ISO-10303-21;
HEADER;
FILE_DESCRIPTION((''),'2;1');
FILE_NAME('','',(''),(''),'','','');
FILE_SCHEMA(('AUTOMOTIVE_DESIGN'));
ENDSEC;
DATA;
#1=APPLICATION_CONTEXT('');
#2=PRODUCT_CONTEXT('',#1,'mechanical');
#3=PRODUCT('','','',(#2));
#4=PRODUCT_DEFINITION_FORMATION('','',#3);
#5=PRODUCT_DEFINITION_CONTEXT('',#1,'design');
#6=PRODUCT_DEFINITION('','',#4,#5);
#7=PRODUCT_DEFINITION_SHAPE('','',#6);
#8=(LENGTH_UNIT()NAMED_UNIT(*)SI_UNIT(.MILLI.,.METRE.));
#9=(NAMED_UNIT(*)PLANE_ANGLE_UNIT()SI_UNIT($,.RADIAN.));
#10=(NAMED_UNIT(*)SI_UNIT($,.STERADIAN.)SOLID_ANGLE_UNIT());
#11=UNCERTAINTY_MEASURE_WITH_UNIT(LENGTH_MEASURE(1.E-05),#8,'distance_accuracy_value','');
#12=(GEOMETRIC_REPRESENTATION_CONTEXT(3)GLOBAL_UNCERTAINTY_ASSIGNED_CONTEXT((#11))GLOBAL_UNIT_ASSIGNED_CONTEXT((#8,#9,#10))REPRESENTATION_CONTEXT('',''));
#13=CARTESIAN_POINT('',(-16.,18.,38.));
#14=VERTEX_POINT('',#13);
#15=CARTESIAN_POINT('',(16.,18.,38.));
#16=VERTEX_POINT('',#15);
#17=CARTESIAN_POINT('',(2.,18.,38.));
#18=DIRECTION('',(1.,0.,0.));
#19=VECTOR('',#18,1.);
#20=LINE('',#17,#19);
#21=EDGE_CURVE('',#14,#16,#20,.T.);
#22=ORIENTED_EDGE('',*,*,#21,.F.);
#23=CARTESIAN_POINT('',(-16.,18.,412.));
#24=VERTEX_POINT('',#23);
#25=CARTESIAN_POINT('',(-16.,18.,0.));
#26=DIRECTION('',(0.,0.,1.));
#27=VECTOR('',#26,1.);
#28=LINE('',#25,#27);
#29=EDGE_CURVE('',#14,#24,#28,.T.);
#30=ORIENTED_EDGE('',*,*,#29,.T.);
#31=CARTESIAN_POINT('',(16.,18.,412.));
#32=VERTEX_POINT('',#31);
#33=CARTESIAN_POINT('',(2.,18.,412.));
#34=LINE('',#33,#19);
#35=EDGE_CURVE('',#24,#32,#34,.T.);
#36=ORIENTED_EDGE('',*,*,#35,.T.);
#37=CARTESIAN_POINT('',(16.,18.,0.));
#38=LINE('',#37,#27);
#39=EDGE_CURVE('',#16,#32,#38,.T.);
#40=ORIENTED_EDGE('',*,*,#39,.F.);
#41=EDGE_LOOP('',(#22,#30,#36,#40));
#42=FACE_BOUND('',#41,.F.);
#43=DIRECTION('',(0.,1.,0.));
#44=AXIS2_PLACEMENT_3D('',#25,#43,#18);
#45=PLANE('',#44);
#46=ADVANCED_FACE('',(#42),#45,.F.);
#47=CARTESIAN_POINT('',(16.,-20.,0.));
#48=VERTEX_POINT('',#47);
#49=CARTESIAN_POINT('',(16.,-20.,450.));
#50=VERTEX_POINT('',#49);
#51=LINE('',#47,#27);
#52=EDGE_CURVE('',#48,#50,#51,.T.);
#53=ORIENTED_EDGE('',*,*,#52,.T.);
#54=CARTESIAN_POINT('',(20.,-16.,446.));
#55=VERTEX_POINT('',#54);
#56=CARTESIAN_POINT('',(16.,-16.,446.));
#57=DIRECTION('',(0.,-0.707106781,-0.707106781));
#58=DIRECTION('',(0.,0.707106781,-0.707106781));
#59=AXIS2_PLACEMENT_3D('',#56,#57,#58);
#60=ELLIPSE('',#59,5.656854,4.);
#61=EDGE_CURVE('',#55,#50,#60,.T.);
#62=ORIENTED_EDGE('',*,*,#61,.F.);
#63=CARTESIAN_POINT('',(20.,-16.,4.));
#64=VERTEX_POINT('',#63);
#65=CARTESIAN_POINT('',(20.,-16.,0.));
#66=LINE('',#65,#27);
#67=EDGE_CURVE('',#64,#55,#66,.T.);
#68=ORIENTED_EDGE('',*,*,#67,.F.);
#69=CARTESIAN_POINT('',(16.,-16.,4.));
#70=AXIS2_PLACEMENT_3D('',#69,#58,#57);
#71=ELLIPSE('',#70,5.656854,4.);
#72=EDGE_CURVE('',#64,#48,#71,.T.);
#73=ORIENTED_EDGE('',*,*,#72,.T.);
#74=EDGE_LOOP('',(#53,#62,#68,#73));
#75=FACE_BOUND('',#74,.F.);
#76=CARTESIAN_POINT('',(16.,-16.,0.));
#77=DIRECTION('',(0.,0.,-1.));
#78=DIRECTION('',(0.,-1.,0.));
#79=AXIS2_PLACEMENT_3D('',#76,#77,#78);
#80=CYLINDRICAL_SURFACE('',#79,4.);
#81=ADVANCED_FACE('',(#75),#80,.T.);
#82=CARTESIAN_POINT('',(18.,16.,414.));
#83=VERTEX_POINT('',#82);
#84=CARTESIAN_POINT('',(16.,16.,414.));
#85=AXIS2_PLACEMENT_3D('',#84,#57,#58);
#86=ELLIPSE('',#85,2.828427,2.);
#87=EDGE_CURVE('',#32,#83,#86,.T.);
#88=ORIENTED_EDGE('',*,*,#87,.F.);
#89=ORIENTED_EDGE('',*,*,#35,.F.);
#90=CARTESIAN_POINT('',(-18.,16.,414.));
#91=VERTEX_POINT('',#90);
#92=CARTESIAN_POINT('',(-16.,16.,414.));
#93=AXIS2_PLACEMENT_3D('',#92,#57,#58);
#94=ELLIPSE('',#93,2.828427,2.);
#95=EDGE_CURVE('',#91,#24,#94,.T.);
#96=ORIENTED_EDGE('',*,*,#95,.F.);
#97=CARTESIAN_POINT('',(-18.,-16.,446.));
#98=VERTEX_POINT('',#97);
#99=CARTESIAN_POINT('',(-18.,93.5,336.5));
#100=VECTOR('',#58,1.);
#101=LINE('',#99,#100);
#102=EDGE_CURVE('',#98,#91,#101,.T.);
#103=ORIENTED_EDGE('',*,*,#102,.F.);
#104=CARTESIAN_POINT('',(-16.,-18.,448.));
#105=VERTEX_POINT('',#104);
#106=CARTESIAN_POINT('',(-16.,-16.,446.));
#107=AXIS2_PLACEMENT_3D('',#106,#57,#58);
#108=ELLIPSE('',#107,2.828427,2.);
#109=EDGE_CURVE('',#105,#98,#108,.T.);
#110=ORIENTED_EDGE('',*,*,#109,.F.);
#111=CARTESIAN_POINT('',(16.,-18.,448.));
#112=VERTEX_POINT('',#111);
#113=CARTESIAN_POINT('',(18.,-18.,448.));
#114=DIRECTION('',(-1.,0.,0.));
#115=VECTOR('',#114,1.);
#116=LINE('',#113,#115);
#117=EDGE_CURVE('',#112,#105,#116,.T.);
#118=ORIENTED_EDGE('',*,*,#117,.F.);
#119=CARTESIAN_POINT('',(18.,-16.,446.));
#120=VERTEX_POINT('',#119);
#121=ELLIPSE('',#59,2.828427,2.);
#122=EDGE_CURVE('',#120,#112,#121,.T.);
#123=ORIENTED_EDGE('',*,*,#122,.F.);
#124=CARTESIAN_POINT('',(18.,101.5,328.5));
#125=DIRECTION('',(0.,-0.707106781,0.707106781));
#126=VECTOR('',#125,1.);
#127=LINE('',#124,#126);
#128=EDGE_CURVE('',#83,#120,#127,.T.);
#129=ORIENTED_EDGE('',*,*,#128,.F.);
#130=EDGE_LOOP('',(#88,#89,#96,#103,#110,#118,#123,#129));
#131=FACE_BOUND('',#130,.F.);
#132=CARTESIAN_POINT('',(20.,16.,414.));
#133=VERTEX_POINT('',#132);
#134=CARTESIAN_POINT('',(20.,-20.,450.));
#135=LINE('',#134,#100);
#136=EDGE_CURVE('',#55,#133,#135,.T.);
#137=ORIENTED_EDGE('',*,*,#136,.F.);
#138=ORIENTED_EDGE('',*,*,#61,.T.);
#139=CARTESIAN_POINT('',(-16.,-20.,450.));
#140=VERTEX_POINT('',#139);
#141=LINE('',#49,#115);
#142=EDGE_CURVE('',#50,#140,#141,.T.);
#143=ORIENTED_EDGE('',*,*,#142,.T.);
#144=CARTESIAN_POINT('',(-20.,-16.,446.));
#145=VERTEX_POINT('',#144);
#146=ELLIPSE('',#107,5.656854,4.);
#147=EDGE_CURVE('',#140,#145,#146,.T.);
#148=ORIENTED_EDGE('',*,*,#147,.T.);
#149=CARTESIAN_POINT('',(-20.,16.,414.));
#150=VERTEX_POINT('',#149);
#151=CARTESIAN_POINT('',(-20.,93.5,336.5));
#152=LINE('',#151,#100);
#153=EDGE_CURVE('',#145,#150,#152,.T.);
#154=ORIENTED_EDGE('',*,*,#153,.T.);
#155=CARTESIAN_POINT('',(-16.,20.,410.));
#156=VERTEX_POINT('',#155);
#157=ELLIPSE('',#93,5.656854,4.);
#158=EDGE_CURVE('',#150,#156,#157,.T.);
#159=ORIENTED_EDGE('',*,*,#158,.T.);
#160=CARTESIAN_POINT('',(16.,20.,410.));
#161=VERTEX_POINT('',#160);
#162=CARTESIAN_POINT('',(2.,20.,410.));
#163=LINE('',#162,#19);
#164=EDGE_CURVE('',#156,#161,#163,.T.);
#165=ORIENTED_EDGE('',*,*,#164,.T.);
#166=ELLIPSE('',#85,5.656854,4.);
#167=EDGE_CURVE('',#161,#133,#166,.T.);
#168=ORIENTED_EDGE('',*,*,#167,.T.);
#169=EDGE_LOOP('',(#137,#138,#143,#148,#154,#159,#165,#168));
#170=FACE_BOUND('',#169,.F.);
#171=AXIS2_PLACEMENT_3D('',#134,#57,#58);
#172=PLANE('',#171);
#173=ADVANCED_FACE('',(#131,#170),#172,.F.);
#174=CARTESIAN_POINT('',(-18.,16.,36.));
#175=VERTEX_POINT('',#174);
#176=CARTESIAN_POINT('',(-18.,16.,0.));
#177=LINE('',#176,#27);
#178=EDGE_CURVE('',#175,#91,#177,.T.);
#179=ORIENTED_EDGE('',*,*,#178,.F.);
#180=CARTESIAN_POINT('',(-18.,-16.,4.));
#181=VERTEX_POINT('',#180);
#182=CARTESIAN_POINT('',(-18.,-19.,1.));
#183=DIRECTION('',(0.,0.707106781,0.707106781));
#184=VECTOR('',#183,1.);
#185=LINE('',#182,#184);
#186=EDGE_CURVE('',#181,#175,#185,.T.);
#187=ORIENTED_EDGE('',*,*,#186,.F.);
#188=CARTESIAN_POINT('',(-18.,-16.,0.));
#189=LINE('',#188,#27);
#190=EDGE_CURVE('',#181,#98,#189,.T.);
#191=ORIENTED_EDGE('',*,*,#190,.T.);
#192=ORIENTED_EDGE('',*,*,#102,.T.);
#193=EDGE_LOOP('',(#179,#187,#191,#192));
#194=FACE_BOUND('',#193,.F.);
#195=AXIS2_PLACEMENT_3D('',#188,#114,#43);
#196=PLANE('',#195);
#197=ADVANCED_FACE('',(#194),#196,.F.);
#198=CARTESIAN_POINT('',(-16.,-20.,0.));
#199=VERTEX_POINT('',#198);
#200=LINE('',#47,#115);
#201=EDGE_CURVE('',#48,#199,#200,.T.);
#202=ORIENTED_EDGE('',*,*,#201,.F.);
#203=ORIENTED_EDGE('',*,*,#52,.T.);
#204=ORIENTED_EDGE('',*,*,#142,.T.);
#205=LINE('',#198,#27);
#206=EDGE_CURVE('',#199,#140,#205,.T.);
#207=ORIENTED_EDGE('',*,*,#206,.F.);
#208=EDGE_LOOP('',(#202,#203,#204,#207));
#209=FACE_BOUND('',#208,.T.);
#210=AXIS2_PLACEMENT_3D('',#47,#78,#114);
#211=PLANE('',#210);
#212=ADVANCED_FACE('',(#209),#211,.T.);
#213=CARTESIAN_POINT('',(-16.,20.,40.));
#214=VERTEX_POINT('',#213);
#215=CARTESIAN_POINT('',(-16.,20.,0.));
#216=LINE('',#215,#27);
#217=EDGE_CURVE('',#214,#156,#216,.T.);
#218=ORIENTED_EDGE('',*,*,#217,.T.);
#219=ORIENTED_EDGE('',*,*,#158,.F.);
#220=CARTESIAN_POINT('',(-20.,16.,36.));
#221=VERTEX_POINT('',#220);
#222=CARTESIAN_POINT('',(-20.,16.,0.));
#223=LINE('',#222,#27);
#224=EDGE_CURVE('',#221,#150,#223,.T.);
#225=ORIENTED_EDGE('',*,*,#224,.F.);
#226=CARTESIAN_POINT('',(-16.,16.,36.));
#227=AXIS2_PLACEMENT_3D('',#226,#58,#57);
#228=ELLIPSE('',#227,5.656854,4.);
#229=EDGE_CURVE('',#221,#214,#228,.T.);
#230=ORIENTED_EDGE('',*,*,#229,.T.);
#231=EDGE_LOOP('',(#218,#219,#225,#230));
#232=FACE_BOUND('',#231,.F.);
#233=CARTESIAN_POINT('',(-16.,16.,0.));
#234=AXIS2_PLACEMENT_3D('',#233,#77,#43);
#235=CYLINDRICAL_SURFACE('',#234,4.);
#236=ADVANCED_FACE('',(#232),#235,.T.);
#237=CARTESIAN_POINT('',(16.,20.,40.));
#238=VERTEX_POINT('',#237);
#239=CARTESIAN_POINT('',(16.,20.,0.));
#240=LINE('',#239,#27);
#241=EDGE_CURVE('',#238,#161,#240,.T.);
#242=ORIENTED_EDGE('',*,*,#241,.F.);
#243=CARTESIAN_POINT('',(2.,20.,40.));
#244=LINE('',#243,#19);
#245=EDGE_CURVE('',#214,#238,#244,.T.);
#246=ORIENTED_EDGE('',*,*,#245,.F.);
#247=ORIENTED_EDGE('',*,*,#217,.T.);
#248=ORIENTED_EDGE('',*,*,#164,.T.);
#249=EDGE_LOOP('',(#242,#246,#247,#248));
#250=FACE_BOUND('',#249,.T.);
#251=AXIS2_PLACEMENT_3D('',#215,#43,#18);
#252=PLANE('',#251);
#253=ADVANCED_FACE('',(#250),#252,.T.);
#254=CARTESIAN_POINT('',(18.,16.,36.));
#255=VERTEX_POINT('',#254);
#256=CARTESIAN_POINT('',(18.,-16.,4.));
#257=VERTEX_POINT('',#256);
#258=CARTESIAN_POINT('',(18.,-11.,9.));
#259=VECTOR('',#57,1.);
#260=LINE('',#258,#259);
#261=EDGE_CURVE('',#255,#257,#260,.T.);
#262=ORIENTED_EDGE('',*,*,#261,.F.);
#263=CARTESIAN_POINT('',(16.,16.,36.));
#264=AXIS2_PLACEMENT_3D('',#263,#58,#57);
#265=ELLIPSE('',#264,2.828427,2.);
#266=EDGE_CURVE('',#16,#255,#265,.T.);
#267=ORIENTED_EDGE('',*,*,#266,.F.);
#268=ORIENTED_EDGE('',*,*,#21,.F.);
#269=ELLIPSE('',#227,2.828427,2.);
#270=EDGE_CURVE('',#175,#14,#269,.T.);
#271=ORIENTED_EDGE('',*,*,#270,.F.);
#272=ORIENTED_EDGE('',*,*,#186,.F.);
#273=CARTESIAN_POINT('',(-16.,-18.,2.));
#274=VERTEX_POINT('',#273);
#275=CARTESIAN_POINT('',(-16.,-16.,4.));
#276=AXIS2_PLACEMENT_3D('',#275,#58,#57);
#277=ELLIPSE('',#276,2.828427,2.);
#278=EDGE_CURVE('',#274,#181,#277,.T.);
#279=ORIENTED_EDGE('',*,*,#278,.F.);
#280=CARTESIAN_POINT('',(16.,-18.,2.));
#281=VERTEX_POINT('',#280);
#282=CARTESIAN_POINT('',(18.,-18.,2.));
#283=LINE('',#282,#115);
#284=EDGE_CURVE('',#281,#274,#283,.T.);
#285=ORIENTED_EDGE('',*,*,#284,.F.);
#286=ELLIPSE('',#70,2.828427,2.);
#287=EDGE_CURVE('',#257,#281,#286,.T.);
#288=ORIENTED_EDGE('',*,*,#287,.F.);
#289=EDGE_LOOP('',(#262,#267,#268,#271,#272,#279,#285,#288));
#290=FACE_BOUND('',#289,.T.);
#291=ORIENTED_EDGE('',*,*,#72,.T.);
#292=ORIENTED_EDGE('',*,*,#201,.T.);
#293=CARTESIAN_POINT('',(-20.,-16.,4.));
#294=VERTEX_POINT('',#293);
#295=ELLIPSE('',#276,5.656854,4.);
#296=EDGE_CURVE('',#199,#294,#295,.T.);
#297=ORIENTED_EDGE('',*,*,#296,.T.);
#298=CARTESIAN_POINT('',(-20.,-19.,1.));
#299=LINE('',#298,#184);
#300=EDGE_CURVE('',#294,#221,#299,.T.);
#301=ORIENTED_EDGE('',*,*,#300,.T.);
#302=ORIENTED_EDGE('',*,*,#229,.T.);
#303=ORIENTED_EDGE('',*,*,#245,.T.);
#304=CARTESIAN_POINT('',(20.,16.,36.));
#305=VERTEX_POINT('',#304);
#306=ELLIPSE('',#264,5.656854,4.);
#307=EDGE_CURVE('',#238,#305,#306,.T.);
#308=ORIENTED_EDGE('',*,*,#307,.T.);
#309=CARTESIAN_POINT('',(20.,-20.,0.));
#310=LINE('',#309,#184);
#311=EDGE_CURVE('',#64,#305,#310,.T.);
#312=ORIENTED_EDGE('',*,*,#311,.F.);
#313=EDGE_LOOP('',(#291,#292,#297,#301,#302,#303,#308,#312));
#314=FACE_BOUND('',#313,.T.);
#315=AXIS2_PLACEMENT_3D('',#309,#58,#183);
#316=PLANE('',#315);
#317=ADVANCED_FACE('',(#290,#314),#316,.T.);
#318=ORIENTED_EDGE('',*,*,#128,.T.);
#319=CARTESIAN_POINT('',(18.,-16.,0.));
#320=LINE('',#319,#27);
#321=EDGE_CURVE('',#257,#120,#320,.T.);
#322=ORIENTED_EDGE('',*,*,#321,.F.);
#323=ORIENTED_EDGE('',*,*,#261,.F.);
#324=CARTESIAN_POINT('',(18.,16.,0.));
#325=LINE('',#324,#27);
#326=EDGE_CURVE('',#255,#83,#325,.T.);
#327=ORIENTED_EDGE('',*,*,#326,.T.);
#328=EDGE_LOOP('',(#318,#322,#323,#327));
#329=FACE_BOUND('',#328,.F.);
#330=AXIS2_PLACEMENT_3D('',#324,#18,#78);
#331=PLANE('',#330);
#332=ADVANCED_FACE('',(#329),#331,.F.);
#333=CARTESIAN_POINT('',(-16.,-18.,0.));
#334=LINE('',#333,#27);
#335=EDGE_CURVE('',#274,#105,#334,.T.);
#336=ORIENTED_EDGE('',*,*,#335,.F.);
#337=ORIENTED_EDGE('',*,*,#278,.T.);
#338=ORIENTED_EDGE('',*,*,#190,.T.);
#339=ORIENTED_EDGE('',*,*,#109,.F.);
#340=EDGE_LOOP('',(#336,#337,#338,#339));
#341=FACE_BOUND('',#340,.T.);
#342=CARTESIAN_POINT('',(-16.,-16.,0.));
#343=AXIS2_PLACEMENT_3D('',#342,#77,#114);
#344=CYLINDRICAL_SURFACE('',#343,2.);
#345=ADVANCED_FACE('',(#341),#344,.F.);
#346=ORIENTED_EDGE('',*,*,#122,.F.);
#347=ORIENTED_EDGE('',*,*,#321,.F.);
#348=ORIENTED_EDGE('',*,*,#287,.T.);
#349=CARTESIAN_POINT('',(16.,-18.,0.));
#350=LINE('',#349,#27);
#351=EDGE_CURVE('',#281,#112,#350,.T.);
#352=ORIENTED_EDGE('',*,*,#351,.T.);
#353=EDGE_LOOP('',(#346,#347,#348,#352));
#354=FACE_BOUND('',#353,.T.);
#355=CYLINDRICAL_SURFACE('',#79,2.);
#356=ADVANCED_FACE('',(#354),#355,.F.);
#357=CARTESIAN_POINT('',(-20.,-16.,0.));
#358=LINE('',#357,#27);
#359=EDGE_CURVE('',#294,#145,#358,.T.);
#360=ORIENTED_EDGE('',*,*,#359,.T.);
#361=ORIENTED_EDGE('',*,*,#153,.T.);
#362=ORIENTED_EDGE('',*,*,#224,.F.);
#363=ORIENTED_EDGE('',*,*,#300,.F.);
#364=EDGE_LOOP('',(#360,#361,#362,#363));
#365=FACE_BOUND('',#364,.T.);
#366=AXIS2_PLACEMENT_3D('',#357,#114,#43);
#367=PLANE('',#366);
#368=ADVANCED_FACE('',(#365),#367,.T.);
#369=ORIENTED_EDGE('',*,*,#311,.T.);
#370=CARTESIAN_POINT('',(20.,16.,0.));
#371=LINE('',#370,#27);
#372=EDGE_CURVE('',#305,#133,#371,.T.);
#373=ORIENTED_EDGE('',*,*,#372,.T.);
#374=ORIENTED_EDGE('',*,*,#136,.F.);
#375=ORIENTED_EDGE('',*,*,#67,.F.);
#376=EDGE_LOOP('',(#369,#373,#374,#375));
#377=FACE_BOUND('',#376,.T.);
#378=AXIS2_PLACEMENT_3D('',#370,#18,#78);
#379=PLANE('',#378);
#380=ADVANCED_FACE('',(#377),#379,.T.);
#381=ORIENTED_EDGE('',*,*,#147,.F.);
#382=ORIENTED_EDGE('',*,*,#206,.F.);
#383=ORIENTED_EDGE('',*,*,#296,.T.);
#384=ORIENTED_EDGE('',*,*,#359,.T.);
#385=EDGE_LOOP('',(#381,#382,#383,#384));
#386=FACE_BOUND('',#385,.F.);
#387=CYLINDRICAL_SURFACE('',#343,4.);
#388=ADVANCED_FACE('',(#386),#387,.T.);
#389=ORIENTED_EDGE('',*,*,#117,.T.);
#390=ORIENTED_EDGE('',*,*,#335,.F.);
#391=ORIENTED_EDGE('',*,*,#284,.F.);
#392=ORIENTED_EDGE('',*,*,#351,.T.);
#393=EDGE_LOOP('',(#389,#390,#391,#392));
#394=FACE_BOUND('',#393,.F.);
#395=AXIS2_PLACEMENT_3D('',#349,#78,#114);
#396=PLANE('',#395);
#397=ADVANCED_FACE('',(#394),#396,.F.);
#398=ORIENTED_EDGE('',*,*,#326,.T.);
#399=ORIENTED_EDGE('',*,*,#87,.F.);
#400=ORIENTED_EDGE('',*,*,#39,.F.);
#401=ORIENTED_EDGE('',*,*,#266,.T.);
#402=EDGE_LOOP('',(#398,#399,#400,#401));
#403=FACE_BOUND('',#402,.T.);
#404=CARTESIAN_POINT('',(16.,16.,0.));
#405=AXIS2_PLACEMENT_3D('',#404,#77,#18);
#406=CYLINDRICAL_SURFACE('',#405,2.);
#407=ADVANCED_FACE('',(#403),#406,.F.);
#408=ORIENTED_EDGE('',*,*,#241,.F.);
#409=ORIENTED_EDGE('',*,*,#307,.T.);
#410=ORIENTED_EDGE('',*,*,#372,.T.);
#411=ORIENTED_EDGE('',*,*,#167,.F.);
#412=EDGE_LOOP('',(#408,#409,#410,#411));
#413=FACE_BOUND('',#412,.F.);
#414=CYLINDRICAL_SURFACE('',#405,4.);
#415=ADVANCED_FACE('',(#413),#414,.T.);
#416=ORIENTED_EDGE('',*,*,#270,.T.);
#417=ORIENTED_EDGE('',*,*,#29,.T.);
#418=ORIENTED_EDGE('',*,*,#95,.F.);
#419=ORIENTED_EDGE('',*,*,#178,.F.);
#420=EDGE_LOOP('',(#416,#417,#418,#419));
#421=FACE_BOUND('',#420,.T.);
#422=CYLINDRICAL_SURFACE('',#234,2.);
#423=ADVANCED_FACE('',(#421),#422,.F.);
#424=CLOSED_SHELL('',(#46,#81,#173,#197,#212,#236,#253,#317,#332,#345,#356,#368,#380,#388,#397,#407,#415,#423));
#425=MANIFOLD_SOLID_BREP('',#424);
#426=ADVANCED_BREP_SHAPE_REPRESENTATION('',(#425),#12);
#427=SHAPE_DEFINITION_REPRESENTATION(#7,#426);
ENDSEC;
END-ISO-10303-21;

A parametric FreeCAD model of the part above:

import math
import FreeCAD as App
import Part
import Sketcher

doc = App.newDocument("Part")
body = doc.addObject("PartDesign::Body", "Body")

# Sketch on XY plane
sketch1 = doc.addObject("Sketcher::SketchObject", "Sketch")
body.addObject(sketch1)
sketch1.AttachmentSupport = (doc.XY_Plane, [""])
sketch1.MapMode = "FlatFace"
sketch1.addGeometry([
    Part.LineSegment(App.Vector(-20, 16, 0), App.Vector(-20, -16, 0)),  # 0
    Part.ArcOfCircle(Part.Circle(App.Vector(-16, -16, 0), App.Vector(0, 0, 1), 4), math.radians(180), math.radians(270)),  # 1
    Part.LineSegment(App.Vector(-16, -20, 0), App.Vector(16, -20, 0)),  # 2
    Part.ArcOfCircle(Part.Circle(App.Vector(16, -16, 0), App.Vector(0, 0, 1), 4), math.radians(-90), math.radians(0)),  # 3
    Part.LineSegment(App.Vector(20, -16, 0), App.Vector(20, 16, 0)),  # 4
    Part.ArcOfCircle(Part.Circle(App.Vector(16, 16, 0), App.Vector(0, 0, 1), 4), math.radians(0), math.radians(90)),  # 5
    Part.LineSegment(App.Vector(16, 20, 0), App.Vector(-16, 20, 0)),  # 6
    Part.ArcOfCircle(Part.Circle(App.Vector(-16, 16, 0), App.Vector(0, 0, 1), 4), math.radians(90), math.radians(180)),  # 7
    Part.ArcOfCircle(Part.Circle(App.Vector(-16, 16, 0), App.Vector(0, 0, 1), 2), math.radians(90), math.radians(180)),  # 8
    Part.LineSegment(App.Vector(-16, 18, 0), App.Vector(16, 18, 0)),  # 9
    Part.ArcOfCircle(Part.Circle(App.Vector(16, 16, 0), App.Vector(0, 0, 1), 2), math.radians(0), math.radians(90)),  # 10
    Part.LineSegment(App.Vector(18, 16, 0), App.Vector(18, -16, 0)),  # 11
    Part.ArcOfCircle(Part.Circle(App.Vector(16, -16, 0), App.Vector(0, 0, 1), 2), math.radians(-90), math.radians(0)),  # 12
    Part.LineSegment(App.Vector(16, -18, 0), App.Vector(-16, -18, 0)),  # 13
    Part.ArcOfCircle(Part.Circle(App.Vector(-16, -16, 0), App.Vector(0, 0, 1), 2), math.radians(180), math.radians(270)),  # 14
    Part.LineSegment(App.Vector(-18, -16, 0), App.Vector(-18, 16, 0)),  # 15
], False)
sketch1.addConstraint([
    Sketcher.Constraint("Tangent", 0, 2, 1, 1),
    Sketcher.Constraint("Tangent", 1, 2, 2, 1),
    Sketcher.Constraint("Tangent", 2, 2, 3, 1),
    Sketcher.Constraint("Tangent", 3, 2, 4, 1),
    Sketcher.Constraint("Tangent", 4, 2, 5, 1),
    Sketcher.Constraint("Tangent", 5, 2, 6, 1),
    Sketcher.Constraint("Tangent", 6, 2, 7, 1),
    Sketcher.Constraint("Tangent", 7, 2, 0, 1),
    Sketcher.Constraint("Tangent", 8, 1, 9, 1),
    Sketcher.Constraint("Tangent", 9, 2, 10, 2),
    Sketcher.Constraint("Tangent", 10, 1, 11, 1),
    Sketcher.Constraint("Tangent", 11, 2, 12, 2),
    Sketcher.Constraint("Tangent", 12, 1, 13, 1),
    Sketcher.Constraint("Tangent", 13, 2, 14, 2),
    Sketcher.Constraint("Tangent", 14, 1, 15, 1),
    Sketcher.Constraint("Tangent", 15, 2, 8, 2),
    Sketcher.Constraint("Vertical", 0),
    Sketcher.Constraint("Horizontal", 2),
    Sketcher.Constraint("Vertical", 4),
    Sketcher.Constraint("Horizontal", 6),
    Sketcher.Constraint("Horizontal", 9),
    Sketcher.Constraint("Vertical", 11),
    Sketcher.Constraint("Horizontal", 13),
    Sketcher.Constraint("Vertical", 15),
    Sketcher.Constraint("Coincident", 8, 3, 7, 3),
    Sketcher.Constraint("Coincident", 10, 3, 5, 3),
    Sketcher.Constraint("Coincident", 12, 3, 3, 3),
    Sketcher.Constraint("Equal", 1, 3),
    Sketcher.Constraint("Equal", 3, 5),
    Sketcher.Constraint("Equal", 5, 7),
    Sketcher.Constraint("Equal", 12, 14),
    Sketcher.Constraint("Symmetric", 1, 3, 5, 3, -1, 1),
    Sketcher.Constraint("Equal", 13, 0),
    Sketcher.Constraint("Radius", 1, 4.0),
    Sketcher.Constraint("Radius", 8, 2.0),
    Sketcher.Constraint("DistanceX", 0, 2, -1, 1, 20.0),
])
pad1 = doc.addObject("PartDesign::Pad", "Pad")
body.addObject(pad1)
pad1.Profile = sketch1
pad1.Length = 450

# Sketch on YZ plane
sketch2 = doc.addObject("Sketcher::SketchObject", "Sketch001")
body.addObject(sketch2)
sketch2.AttachmentSupport = (doc.YZ_Plane, [""])
sketch2.MapMode = "FlatFace"
sketch2.AttachmentOffset = App.Placement(App.Vector(0, 0, 20), App.Rotation())
sketch2.addGeometry([
    Part.LineSegment(App.Vector(41, 450, 0), App.Vector(-20, 450, 0)),  # 0
    Part.LineSegment(App.Vector(-20, 450, 0), App.Vector(41, 389, 0)),  # 1
    Part.LineSegment(App.Vector(41, 389, 0), App.Vector(41, 450, 0)),  # 2
    Part.LineSegment(App.Vector(32, 52, 0), App.Vector(-20, 0, 0)),  # 3
    Part.LineSegment(App.Vector(-20, 0, 0), App.Vector(32, 0, 0)),  # 4
    Part.LineSegment(App.Vector(32, 0, 0), App.Vector(32, 52, 0)),  # 5
], False)
sketch2.addConstraint([
    Sketcher.Constraint("Coincident", 0, 2, 1, 1),
    Sketcher.Constraint("Coincident", 1, 2, 2, 1),
    Sketcher.Constraint("Coincident", 2, 2, 0, 1),
    Sketcher.Constraint("Coincident", 3, 2, 4, 1),
    Sketcher.Constraint("Coincident", 4, 2, 5, 1),
    Sketcher.Constraint("Coincident", 5, 2, 3, 1),
    Sketcher.Constraint("Horizontal", 0),
    Sketcher.Constraint("Vertical", 2),
    Sketcher.Constraint("Horizontal", 4),
    Sketcher.Constraint("Vertical", 5),
    Sketcher.Constraint("PointOnObject", 3, 2, -1),
    Sketcher.Constraint("Perpendicular", 1, 3),
    Sketcher.Constraint("Vertical", 0, 2, 3, 2),
    Sketcher.Constraint("Equal", 0, 2),
    Sketcher.Constraint("DistanceX", 0, 2, -1, 1, 20.0),
    Sketcher.Constraint("DistanceY", -1, 1, 0, 2, 450.0),
    Sketcher.Constraint("DistanceY", 5, 2, 1, 2, 336.74),
    Sketcher.Constraint("DistanceX", 0, 2, 0, 1, 61.1128),
])
pocket1 = doc.addObject("PartDesign::Pocket", "Pocket")
body.addObject(pocket1)
pocket1.Profile = sketch2
pocket1.Length = 40

doc.recompute()
